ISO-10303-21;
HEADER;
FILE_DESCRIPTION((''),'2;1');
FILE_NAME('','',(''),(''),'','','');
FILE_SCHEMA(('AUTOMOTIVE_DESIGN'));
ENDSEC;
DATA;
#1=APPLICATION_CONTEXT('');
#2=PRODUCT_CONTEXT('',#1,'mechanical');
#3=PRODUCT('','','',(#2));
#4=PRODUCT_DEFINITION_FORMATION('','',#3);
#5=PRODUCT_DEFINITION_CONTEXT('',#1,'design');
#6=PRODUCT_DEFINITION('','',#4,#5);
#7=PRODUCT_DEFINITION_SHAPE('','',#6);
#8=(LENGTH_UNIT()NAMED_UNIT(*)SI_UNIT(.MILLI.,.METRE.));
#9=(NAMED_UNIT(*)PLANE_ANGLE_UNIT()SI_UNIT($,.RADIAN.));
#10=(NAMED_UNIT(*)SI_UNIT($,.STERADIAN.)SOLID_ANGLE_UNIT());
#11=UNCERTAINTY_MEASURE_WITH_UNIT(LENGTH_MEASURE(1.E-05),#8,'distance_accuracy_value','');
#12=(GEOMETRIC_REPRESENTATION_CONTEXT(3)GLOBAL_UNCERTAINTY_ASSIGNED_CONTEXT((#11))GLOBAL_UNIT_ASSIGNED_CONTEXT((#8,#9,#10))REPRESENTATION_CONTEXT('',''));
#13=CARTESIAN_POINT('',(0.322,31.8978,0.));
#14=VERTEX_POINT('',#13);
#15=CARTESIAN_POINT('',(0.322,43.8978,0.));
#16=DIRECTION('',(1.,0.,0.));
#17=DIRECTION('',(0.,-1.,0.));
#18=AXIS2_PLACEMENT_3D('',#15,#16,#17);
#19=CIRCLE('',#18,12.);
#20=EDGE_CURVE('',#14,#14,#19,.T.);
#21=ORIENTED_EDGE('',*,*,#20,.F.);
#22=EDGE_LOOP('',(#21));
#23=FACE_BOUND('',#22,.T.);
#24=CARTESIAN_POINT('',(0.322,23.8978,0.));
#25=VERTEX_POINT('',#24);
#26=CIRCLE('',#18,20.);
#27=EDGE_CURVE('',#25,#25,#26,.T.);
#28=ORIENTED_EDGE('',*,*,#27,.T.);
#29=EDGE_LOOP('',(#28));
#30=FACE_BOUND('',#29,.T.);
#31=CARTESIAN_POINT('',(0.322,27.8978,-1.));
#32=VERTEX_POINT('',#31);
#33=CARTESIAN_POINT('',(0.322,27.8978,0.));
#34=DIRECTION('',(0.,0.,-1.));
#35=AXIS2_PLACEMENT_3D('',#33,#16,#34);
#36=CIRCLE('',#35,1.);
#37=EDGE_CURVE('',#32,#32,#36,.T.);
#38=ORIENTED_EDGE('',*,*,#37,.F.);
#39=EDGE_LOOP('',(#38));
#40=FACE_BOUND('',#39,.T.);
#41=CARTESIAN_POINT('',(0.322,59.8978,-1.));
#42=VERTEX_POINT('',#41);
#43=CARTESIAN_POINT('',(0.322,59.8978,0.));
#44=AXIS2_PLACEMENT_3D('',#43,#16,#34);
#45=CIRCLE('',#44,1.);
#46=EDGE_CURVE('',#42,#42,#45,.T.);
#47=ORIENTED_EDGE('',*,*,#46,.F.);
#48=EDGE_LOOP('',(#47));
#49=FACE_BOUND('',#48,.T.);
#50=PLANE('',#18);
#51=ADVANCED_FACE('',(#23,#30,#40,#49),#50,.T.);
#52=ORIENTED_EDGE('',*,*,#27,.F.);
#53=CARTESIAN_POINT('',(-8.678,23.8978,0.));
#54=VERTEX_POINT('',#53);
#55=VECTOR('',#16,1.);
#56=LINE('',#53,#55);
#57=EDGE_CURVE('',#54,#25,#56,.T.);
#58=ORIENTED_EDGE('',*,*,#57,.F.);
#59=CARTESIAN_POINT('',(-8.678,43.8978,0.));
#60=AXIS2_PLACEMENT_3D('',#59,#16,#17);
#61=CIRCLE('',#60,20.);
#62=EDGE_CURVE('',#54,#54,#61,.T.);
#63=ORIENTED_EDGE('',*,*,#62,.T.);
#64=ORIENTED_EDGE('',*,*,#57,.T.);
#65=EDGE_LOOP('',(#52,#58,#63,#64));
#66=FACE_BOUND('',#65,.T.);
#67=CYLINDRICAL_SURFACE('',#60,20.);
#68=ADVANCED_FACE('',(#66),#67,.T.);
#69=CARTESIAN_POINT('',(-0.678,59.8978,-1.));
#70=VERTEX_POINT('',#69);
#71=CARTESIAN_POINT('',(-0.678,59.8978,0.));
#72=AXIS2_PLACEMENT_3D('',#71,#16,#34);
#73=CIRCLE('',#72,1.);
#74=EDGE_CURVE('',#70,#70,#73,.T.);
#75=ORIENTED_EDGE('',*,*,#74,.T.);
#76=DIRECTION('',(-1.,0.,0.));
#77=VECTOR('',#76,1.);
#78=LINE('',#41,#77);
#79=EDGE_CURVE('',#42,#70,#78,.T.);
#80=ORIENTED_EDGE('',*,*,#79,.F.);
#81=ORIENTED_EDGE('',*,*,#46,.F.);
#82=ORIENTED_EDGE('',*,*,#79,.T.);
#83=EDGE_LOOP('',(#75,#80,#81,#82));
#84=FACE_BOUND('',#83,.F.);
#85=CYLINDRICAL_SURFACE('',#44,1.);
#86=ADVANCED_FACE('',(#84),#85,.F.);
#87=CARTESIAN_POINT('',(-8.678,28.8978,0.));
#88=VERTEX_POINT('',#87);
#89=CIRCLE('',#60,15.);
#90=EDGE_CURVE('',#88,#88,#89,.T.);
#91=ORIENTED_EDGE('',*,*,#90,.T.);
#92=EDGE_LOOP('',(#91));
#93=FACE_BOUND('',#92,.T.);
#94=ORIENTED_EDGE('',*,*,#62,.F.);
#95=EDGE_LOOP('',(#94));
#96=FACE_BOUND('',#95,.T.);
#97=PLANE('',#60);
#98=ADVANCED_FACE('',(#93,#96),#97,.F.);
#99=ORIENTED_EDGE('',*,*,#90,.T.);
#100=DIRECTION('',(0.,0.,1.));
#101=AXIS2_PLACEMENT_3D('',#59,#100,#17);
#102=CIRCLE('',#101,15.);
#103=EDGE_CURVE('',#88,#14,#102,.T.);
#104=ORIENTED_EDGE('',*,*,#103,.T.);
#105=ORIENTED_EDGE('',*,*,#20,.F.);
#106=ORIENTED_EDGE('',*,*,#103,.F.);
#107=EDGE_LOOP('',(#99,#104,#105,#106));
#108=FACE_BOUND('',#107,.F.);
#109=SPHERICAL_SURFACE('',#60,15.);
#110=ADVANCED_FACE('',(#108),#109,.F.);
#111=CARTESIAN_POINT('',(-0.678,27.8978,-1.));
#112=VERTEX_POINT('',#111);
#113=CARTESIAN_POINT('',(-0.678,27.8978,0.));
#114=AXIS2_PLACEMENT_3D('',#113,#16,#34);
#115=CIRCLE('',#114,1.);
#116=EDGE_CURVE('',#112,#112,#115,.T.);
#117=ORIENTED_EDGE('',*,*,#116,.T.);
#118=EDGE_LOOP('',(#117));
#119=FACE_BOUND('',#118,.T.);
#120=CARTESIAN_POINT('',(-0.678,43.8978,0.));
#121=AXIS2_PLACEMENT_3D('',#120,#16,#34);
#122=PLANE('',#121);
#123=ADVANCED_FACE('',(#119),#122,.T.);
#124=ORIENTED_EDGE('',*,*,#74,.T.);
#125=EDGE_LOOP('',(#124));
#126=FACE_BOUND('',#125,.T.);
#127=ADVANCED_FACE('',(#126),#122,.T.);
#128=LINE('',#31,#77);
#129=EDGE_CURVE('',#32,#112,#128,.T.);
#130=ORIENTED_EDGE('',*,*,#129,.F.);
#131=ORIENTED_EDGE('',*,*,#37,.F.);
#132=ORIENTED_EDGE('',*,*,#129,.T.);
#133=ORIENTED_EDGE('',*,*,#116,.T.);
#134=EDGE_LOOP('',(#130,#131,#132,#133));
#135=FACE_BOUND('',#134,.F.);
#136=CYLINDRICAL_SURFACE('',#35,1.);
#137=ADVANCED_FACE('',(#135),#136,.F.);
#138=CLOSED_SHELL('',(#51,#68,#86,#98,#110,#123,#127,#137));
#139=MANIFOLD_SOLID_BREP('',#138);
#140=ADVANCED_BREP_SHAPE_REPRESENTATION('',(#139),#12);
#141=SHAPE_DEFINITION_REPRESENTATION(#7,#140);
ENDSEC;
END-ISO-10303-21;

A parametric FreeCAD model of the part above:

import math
import FreeCAD as App
import Part
import Sketcher
from FreeCAD import Vector
Q = App.Units.Quantity

doc = App.newDocument("Part")
body = doc.addObject("PartDesign::Body", "Body")

# Sketch on XY plane
sketch1 = body.newObject("Sketcher::SketchObject", "Sketch")
sketch1.AttachmentSupport = (doc.getObject("XY_Plane"), [""])
sketch1.MapMode = "FlatFace"
sketch1.addGeometry([
    Part.LineSegment(Vector(-9, 24, 0), Vector(0, 24, 0)),
    Part.LineSegment(Vector(0, 24, 0), Vector(0, 32, 0)),
    Part.ArcOfCircle(Part.Circle(Vector(-9, 44, 0), Vector(0, 0, 1), 15), math.radians(-90), math.radians(-53)),
    Part.LineSegment(Vector(-9, 29, 0), Vector(-9, 24, 0)),
], False)
sketch1.addGeometry(Part.LineSegment(Vector(-9, 44, 0), Vector(0, 44, 0)), True)  # axis
sketch1.addConstraint([
    Sketcher.Constraint("Coincident", 0, 2, 1, 1),
    Sketcher.Constraint("Coincident", 1, 2, 2, 2),
    Sketcher.Constraint("Coincident", 2, 1, 3, 1),
    Sketcher.Constraint("Coincident", 3, 2, 0, 1),
    Sketcher.Constraint("Horizontal", 0),
    Sketcher.Constraint("Vertical", 1),
    Sketcher.Constraint("Vertical", 3),
    Sketcher.Constraint("Horizontal", 4),
    Sketcher.Constraint("Coincident", 4, 1, 2, 3),
    Sketcher.Constraint("Vertical", 3, 2, 4, 1),
    Sketcher.Constraint("Vertical", 1, 2, 4, 2),
    Sketcher.Constraint("Radius", 2, Q("15 mm")),
    Sketcher.Constraint("DistanceX", 0, 1, 0, 2, Q("9 mm")),
    Sketcher.Constraint("DistanceY", 1, 1, 1, 2, Q("8 mm")),
    Sketcher.Constraint("DistanceX", 2, 3, -1, 1, Q("8.678 mm")),
    Sketcher.Constraint("DistanceY", -1, 1, 2, 3, Q("43.8978 mm")),
])
revolution = body.newObject("PartDesign::Revolution", "Revolution")
revolution.Profile = sketch1
revolution.ReferenceAxis = (sketch1, ["Axis0"])
revolution.Angle = 360

# Sketch on YZ plane
sketch2 = body.newObject("Sketcher::SketchObject", "Sketch001")
sketch2.AttachmentSupport = (doc.getObject("YZ_Plane"), [""])
sketch2.MapMode = "FlatFace"
sketch2.AttachmentOffset = App.Placement(Vector(0, 0, 0.322), App.Rotation())
sketch2.addGeometry([
    Part.Circle(Vector(27.9, 0, 0), Vector(0, 0, 1), 1),
    Part.Circle(Vector(59.9, 0, 0), Vector(0, 0, 1), 1),
], False)
sketch2.addConstraint([
    Sketcher.Constraint("Equal", 0, 1),
    Sketcher.Constraint("PointOnObject", 0, 3, -1),
    Sketcher.Constraint("PointOnObject", 1, 3, -1),
    Sketcher.Constraint("Diameter", 0, Q("2 mm")),
    Sketcher.Constraint("DistanceX", 0, 3, 1, 3, Q("32 mm")),
    Sketcher.Constraint("DistanceX", -1, 1, 0, 3, Q("27.8978 mm")),
])
pocket1 = body.newObject("PartDesign::Pocket", "Pocket")
pocket1.Profile = sketch2
pocket1.Length = 1

doc.recompute()
